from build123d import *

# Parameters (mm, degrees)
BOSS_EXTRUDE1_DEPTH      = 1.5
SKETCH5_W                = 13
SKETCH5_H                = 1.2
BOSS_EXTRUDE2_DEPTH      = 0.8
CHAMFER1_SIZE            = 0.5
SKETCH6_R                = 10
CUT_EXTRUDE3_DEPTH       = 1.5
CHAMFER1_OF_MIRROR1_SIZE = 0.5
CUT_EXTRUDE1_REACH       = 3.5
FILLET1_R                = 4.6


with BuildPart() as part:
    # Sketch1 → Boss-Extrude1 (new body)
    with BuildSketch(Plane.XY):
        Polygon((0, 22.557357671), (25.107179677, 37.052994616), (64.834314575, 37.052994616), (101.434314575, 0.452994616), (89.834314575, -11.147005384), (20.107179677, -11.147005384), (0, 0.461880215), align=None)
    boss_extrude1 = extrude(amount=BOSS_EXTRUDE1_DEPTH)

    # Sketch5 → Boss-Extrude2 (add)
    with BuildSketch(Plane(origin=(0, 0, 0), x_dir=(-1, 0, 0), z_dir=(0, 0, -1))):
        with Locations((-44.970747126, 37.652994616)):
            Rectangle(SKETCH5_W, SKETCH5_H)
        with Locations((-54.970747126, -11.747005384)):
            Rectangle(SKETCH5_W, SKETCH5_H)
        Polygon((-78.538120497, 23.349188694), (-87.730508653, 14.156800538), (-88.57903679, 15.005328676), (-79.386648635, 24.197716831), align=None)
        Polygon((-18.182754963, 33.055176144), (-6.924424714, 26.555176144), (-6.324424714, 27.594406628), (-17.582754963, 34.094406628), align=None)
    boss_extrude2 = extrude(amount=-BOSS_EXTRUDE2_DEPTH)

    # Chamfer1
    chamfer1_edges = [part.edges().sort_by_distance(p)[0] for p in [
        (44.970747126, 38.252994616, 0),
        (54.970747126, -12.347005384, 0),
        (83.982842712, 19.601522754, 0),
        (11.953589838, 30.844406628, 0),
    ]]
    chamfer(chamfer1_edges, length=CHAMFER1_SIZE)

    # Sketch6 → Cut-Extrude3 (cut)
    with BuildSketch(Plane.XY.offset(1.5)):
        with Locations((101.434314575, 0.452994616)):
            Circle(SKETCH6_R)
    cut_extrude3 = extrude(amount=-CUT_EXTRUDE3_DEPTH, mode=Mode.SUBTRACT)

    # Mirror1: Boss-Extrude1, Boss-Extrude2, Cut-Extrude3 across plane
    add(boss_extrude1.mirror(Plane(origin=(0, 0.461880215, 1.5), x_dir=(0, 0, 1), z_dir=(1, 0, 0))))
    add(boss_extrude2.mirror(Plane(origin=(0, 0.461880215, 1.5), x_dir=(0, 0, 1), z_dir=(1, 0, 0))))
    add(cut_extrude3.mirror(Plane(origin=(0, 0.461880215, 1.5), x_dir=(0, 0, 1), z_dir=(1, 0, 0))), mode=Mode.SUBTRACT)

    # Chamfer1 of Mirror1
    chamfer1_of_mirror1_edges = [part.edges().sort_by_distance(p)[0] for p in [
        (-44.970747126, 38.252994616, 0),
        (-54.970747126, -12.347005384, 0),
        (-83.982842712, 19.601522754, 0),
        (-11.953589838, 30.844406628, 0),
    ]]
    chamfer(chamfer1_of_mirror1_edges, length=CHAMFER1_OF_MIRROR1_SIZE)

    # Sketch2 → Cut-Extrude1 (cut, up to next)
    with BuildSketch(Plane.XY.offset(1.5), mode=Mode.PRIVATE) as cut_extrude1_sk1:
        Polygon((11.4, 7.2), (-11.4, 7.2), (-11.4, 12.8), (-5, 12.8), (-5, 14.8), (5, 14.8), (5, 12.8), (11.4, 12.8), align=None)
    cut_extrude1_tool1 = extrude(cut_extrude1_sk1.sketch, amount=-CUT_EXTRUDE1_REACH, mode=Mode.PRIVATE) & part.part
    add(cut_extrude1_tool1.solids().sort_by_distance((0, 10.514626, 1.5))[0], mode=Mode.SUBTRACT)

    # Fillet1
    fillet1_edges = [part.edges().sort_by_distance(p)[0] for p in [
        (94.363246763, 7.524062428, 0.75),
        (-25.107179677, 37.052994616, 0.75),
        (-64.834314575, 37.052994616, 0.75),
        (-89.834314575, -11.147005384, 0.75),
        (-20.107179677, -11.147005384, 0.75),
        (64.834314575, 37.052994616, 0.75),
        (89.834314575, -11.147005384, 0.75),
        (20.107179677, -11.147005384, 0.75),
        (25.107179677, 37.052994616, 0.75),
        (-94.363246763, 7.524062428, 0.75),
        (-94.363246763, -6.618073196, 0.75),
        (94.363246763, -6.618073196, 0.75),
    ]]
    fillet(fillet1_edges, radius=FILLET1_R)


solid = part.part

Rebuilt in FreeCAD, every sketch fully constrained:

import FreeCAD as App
import Part
import Sketcher
from FreeCAD import Vector
Q = App.Units.Quantity


def edges_at(feature, points):
    """Names of the edges that pass closest to the given points."""
    edges = feature.Shape.Edges
    near = lambda p: min(range(len(edges)), key=lambda i: edges[i].distToShape(Part.Vertex(*p))[0])
    return sorted({f"Edge{near(p) + 1}" for p in points})

doc = App.newDocument("Part")
body = doc.addObject("PartDesign::Body", "Body")

# Sketch on XY plane
sketch1 = body.newObject("Sketcher::SketchObject", "Sketch")
sketch1.AttachmentSupport = (doc.getObject("XY_Plane"), [""])
sketch1.MapMode = "FlatFace"
sketch1.addGeometry([
    Part.LineSegment(Vector(25.10718, 37.052995, 0), Vector(0, 22.557358, 0)),  # 0
    Part.LineSegment(Vector(0, 22.557358, 0), Vector(0, 0.46188, 0)),  # 1
    Part.LineSegment(Vector(0, 0.46188, 0), Vector(20.10718, -11.147005, 0)),  # 2
    Part.LineSegment(Vector(20.10718, -11.147005, 0), Vector(89.834315, -11.147005, 0)),  # 3
    Part.LineSegment(Vector(89.834315, -11.147005, 0), Vector(101.434315, 0.452995, 0)),  # 4
    Part.LineSegment(Vector(101.434315, 0.452995, 0), Vector(64.834315, 37.052995, 0)),  # 5
    Part.LineSegment(Vector(64.834315, 37.052995, 0), Vector(25.10718, 37.052995, 0)),  # 6
], False)
sketch1.addConstraint([
    Sketcher.Constraint("Coincident", 0, 2, 1, 1),
    Sketcher.Constraint("Coincident", 1, 2, 2, 1),
    Sketcher.Constraint("Coincident", 2, 2, 3, 1),
    Sketcher.Constraint("Coincident", 3, 2, 4, 1),
    Sketcher.Constraint("Coincident", 4, 2, 5, 1),
    Sketcher.Constraint("Coincident", 5, 2, 6, 1),
    Sketcher.Constraint("Coincident", 6, 2, 0, 1),
    Sketcher.Constraint("Vertical", 1),
    Sketcher.Constraint("Horizontal", 3),
    Sketcher.Constraint("Horizontal", 6),
    Sketcher.Constraint("PointOnObject", 0, 2, -2),
    Sketcher.Constraint("Perpendicular", 4, 5),
    Sketcher.Constraint("Angle", 0, Q("-150 deg")),
    Sketcher.Constraint("Angle", 2, Q("-30 deg")),
    Sketcher.Constraint("Angle", 4, Q("45 deg")),
    Sketcher.Constraint("DistanceX", 5, 2, 3, 2, 25.0),
    Sketcher.Constraint("DistanceX", 2, 2, 6, 2, 5.0),
    Sketcher.Constraint("DistanceX", 3, 2, 4, 2, 11.6),
    Sketcher.Constraint("Distance", 2, 23.217771),
    Sketcher.Constraint("DistanceX", 3, 1, 3, 2, 69.727135),
    Sketcher.Constraint("DistanceY", -1, 1, 1, 2, 0.46188),
])
pad1 = body.newObject("PartDesign::Pad", "Pad")
pad1.Profile = sketch1
pad1.Length = 1.5

# Sketch on XY plane
sketch2 = body.newObject("Sketcher::SketchObject", "Sketch001")
sketch2.AttachmentSupport = (doc.getObject("XY_Plane"), [""])
sketch2.MapMode = "FlatFace"
sketch2.addGeometry([
    Part.LineSegment(Vector(51.470747, 38.252995, 0), Vector(51.470747, 37.052995, 0)),  # 0
    Part.LineSegment(Vector(51.470747, 37.052995, 0), Vector(38.470747, 37.052995, 0)),  # 1
    Part.LineSegment(Vector(38.470747, 37.052995, 0), Vector(38.470747, 38.252995, 0)),  # 2
    Part.LineSegment(Vector(38.470747, 38.252995, 0), Vector(51.470747, 38.252995, 0)),  # 3
    Part.LineSegment(Vector(61.470747, -11.147005, 0), Vector(61.470747, -12.347005, 0)),  # 4
    Part.LineSegment(Vector(61.470747, -12.347005, 0), Vector(48.470747, -12.347005, 0)),  # 5
    Part.LineSegment(Vector(48.470747, -12.347005, 0), Vector(48.470747, -11.147005, 0)),  # 6
    Part.LineSegment(Vector(48.470747, -11.147005, 0), Vector(61.470747, -11.147005, 0)),  # 7
    Part.LineSegment(Vector(87.730509, 14.156801, 0), Vector(78.53812, 23.349189, 0)),  # 8
    Part.LineSegment(Vector(78.53812, 23.349189, 0), Vector(79.386649, 24.197717, 0)),  # 9
    Part.LineSegment(Vector(79.386649, 24.197717, 0), Vector(88.579037, 15.005329, 0)),  # 10
    Part.LineSegment(Vector(88.579037, 15.005329, 0), Vector(87.730509, 14.156801, 0)),  # 11
    Part.LineSegment(Vector(18.182755, 33.055176, 0), Vector(6.924425, 26.555176, 0)),  # 12
    Part.LineSegment(Vector(6.924425, 26.555176, 0), Vector(6.324425, 27.594407, 0)),  # 13
    Part.LineSegment(Vector(6.324425, 27.594407, 0), Vector(17.582755, 34.094407, 0)),  # 14
    Part.LineSegment(Vector(17.582755, 34.094407, 0), Vector(18.182755, 33.055176, 0)),  # 15
], False)
sketch2.addConstraint([
    Sketcher.Constraint("Coincident", 0, 2, 1, 1),
    Sketcher.Constraint("Coincident", 1, 2, 2, 1),
    Sketcher.Constraint("Coincident", 2, 2, 3, 1),
    Sketcher.Constraint("Coincident", 3, 2, 0, 1),
    Sketcher.Constraint("Coincident", 4, 2, 5, 1),
    Sketcher.Constraint("Coincident", 5, 2, 6, 1),
    Sketcher.Constraint("Coincident", 6, 2, 7, 1),
    Sketcher.Constraint("Coincident", 7, 2, 4, 1),
    Sketcher.Constraint("Coincident", 8, 2, 9, 1),
    Sketcher.Constraint("Coincident", 9, 2, 10, 1),
    Sketcher.Constraint("Coincident", 10, 2, 11, 1),
    Sketcher.Constraint("Coincident", 11, 2, 8, 1),
    Sketcher.Constraint("Coincident", 12, 2, 13, 1),
    Sketcher.Constraint("Coincident", 13, 2, 14, 1),
    Sketcher.Constraint("Coincident", 14, 2, 15, 1),
    Sketcher.Constraint("Coincident", 15, 2, 12, 1),
    Sketcher.Constraint("Vertical", 0),
    Sketcher.Constraint("Horizontal", 1),
    Sketcher.Constraint("Vertical", 2),
    Sketcher.Constraint("Horizontal", 3),
    Sketcher.Constraint("Vertical", 4),
    Sketcher.Constraint("Horizontal", 5),
    Sketcher.Constraint("Vertical", 6),
    Sketcher.Constraint("Horizontal", 7),
    Sketcher.Constraint("Perpendicular", 8, 9),
    Sketcher.Constraint("Perpendicular", 9, 10),
    Sketcher.Constraint("Perpendicular", 10, 11),
    Sketcher.Constraint("Perpendicular", 12, 13),
    Sketcher.Constraint("Perpendicular", 13, 14),
    Sketcher.Constraint("Perpendicular", 14, 15),
    Sketcher.Constraint("Equal", 3, 5),
    Sketcher.Constraint("Equal", 2, 4),
    Sketcher.Constraint("Equal", 10, 12),
    Sketcher.Constraint("Equal", 11, 13),
    Sketcher.Constraint("DistanceX", 1, 2, 1, 1, 13.0),
    Sketcher.Constraint("Angle", 8, Q("135 deg")),
    Sketcher.Constraint("Angle", 12, Q("-150 deg")),
    Sketcher.Constraint("Distance", 8, 13.0),
    Sketcher.Constraint("DistanceY", 0, 2, 0, 1, 1.2),
    Sketcher.Constraint("DistanceX", 0, 2, 4, 2, 10.0),
    Sketcher.Constraint("Distance", 9, 1.2),
    Sketcher.Constraint("DistanceY", 4, 2, 0, 2, 49.4),
    Sketcher.Constraint("DistanceY", -1, 1, 11, 2, 14.156801),
    Sketcher.Constraint("DistanceX", 0, 2, 9, 2, 27.915902),
    Sketcher.Constraint("DistanceX", -1, 1, 8, 2, 78.53812),
    Sketcher.Constraint("DistanceY", 12, 2, 1, 2, 10.497818),
    Sketcher.Constraint("DistanceY", -1, 1, 0, 2, 37.052995),
    Sketcher.Constraint("DistanceX", -1, 1, 12, 2, 6.924425),
])
pad2 = body.newObject("PartDesign::Pad", "Pad001")
pad2.Profile = sketch2
pad2.Length = 0.8
doc.recompute()

chamfer = body.newObject("PartDesign::Chamfer", "Chamfer")
chamfer.Base = (pad2, edges_at(pad2, [
    (44.971, 38.253, 0),
    (54.971, -12.347, 0),
    (83.983, 19.602, 0),
    (11.954, 30.844, 0),
]))
chamfer.Size = 0.5

# Sketch on XY plane
sketch3 = body.newObject("Sketcher::SketchObject", "Sketch002")
sketch3.AttachmentSupport = (doc.getObject("XY_Plane"), [""])
sketch3.MapMode = "FlatFace"
sketch3.AttachmentOffset = App.Placement(Vector(0, 0, 1.5), App.Rotation())
sketch3.addGeometry(Part.Circle(Vector(101.434315, 0.452995, 0), Vector(0, 0, 1), 10), False)
sketch3.addConstraint([
    Sketcher.Constraint("Diameter", 0, 20.0),
    Sketcher.Constraint("DistanceX", -1, 1, 0, 3, 101.434315),
    Sketcher.Constraint("DistanceY", -1, 1, 0, 3, 0.452995),
])
pocket1 = body.newObject("PartDesign::Pocket", "Pocket")
pocket1.Profile = sketch3
pocket1.Length = 1.5
doc.recompute()

mirrored = body.newObject("PartDesign::Mirrored", "Mirrored")
mirrored.Originals = [pad1, pad2, pocket1]
mirrored.MirrorPlane = (doc.getObject("YZ_Plane"), [""])
body.Tip = mirrored
doc.recompute()

chamfer2 = body.newObject("PartDesign::Chamfer", "Chamfer001")
chamfer2.Base = (mirrored, edges_at(mirrored, [
    (-44.971, 38.253, 0),
    (-54.971, -12.347, 0),
    (-83.983, 19.602, 0),
    (-11.954, 30.844, 0),
]))
chamfer2.Size = 0.5

# Sketch on XY plane
sketch4 = body.newObject("Sketcher::SketchObject", "Sketch003")
sketch4.AttachmentSupport = (doc.getObject("XY_Plane"), [""])
sketch4.MapMode = "FlatFace"
sketch4.AttachmentOffset = App.Placement(Vector(0, 0, 1.5), App.Rotation())
sketch4.addGeometry([
    Part.LineSegment(Vector(-11.4, 7.2, 0), Vector(11.4, 7.2, 0)),  # 0
    Part.LineSegment(Vector(11.4, 7.2, 0), Vector(11.4, 12.8, 0)),  # 1
    Part.LineSegment(Vector(11.4, 12.8, 0), Vector(5, 12.8, 0)),  # 2
    Part.LineSegment(Vector(5, 12.8, 0), Vector(5, 14.8, 0)),  # 3
    Part.LineSegment(Vector(5, 14.8, 0), Vector(-5, 14.8, 0)),  # 4
    Part.LineSegment(Vector(-5, 14.8, 0), Vector(-5, 12.8, 0)),  # 5
    Part.LineSegment(Vector(-5, 12.8, 0), Vector(-11.4, 12.8, 0)),  # 6
    Part.LineSegment(Vector(-11.4, 12.8, 0), Vector(-11.4, 7.2, 0)),  # 7
], False)
sketch4.addConstraint([
    Sketcher.Constraint("Coincident", 0, 2, 1, 1),
    Sketcher.Constraint("Coincident", 1, 2, 2, 1),
    Sketcher.Constraint("Coincident", 2, 2, 3, 1),
    Sketcher.Constraint("Coincident", 3, 2, 4, 1),
    Sketcher.Constraint("Coincident", 4, 2, 5, 1),
    Sketcher.Constraint("Coincident", 5, 2, 6, 1),
    Sketcher.Constraint("Coincident", 6, 2, 7, 1),
    Sketcher.Constraint("Coincident", 7, 2, 0, 1),
    Sketcher.Constraint("Horizontal", 0),
    Sketcher.Constraint("Vertical", 1),
    Sketcher.Constraint("Horizontal", 2),
    Sketcher.Constraint("Vertical", 3),
    Sketcher.Constraint("Horizontal", 4),
    Sketcher.Constraint("Vertical", 5),
    Sketcher.Constraint("Horizontal", 6),
    Sketcher.Constraint("Vertical", 7),
    Sketcher.Constraint("Symmetric", 2, 2, 5, 2, -2),
    Sketcher.Constraint("Equal", 2, 6),
    Sketcher.Constraint("DistanceX", 4, 2, 4, 1, 10.0),
    Sketcher.Constraint("DistanceY", 3, 1, 3, 2, 2.0),
    Sketcher.Constraint("DistanceX", 0, 1, 0, 2, 22.8),
    Sketcher.Constraint("DistanceY", 1, 1, 1, 2, 5.6),
    Sketcher.Constraint("DistanceY", -1, 1, 0, 2, 7.2),
])
pocket2 = body.newObject("PartDesign::Pocket", "Pocket001")
pocket2.Profile = sketch4
pocket2.Type = "UpToFirst"
doc.recompute()

fillet = body.newObject("PartDesign::Fillet", "Fillet")
fillet.Base = (pocket2, edges_at(pocket2, [
    (94.363, 7.524, 0.75),
    (-25.107, 37.053, 0.75),
    (-64.834, 37.053, 0.75),
    (-89.834, -11.147, 0.75),
    (-20.107, -11.147, 0.75),
    (64.834, 37.053, 0.75),
    (89.834, -11.147, 0.75),
    (20.107, -11.147, 0.75),
    (25.107, 37.053, 0.75),
    (-94.363, 7.524, 0.75),
    (-94.363, -6.618, 0.75),
    (94.363, -6.618, 0.75),
]))
fillet.Radius = 4.6

doc.recompute()
